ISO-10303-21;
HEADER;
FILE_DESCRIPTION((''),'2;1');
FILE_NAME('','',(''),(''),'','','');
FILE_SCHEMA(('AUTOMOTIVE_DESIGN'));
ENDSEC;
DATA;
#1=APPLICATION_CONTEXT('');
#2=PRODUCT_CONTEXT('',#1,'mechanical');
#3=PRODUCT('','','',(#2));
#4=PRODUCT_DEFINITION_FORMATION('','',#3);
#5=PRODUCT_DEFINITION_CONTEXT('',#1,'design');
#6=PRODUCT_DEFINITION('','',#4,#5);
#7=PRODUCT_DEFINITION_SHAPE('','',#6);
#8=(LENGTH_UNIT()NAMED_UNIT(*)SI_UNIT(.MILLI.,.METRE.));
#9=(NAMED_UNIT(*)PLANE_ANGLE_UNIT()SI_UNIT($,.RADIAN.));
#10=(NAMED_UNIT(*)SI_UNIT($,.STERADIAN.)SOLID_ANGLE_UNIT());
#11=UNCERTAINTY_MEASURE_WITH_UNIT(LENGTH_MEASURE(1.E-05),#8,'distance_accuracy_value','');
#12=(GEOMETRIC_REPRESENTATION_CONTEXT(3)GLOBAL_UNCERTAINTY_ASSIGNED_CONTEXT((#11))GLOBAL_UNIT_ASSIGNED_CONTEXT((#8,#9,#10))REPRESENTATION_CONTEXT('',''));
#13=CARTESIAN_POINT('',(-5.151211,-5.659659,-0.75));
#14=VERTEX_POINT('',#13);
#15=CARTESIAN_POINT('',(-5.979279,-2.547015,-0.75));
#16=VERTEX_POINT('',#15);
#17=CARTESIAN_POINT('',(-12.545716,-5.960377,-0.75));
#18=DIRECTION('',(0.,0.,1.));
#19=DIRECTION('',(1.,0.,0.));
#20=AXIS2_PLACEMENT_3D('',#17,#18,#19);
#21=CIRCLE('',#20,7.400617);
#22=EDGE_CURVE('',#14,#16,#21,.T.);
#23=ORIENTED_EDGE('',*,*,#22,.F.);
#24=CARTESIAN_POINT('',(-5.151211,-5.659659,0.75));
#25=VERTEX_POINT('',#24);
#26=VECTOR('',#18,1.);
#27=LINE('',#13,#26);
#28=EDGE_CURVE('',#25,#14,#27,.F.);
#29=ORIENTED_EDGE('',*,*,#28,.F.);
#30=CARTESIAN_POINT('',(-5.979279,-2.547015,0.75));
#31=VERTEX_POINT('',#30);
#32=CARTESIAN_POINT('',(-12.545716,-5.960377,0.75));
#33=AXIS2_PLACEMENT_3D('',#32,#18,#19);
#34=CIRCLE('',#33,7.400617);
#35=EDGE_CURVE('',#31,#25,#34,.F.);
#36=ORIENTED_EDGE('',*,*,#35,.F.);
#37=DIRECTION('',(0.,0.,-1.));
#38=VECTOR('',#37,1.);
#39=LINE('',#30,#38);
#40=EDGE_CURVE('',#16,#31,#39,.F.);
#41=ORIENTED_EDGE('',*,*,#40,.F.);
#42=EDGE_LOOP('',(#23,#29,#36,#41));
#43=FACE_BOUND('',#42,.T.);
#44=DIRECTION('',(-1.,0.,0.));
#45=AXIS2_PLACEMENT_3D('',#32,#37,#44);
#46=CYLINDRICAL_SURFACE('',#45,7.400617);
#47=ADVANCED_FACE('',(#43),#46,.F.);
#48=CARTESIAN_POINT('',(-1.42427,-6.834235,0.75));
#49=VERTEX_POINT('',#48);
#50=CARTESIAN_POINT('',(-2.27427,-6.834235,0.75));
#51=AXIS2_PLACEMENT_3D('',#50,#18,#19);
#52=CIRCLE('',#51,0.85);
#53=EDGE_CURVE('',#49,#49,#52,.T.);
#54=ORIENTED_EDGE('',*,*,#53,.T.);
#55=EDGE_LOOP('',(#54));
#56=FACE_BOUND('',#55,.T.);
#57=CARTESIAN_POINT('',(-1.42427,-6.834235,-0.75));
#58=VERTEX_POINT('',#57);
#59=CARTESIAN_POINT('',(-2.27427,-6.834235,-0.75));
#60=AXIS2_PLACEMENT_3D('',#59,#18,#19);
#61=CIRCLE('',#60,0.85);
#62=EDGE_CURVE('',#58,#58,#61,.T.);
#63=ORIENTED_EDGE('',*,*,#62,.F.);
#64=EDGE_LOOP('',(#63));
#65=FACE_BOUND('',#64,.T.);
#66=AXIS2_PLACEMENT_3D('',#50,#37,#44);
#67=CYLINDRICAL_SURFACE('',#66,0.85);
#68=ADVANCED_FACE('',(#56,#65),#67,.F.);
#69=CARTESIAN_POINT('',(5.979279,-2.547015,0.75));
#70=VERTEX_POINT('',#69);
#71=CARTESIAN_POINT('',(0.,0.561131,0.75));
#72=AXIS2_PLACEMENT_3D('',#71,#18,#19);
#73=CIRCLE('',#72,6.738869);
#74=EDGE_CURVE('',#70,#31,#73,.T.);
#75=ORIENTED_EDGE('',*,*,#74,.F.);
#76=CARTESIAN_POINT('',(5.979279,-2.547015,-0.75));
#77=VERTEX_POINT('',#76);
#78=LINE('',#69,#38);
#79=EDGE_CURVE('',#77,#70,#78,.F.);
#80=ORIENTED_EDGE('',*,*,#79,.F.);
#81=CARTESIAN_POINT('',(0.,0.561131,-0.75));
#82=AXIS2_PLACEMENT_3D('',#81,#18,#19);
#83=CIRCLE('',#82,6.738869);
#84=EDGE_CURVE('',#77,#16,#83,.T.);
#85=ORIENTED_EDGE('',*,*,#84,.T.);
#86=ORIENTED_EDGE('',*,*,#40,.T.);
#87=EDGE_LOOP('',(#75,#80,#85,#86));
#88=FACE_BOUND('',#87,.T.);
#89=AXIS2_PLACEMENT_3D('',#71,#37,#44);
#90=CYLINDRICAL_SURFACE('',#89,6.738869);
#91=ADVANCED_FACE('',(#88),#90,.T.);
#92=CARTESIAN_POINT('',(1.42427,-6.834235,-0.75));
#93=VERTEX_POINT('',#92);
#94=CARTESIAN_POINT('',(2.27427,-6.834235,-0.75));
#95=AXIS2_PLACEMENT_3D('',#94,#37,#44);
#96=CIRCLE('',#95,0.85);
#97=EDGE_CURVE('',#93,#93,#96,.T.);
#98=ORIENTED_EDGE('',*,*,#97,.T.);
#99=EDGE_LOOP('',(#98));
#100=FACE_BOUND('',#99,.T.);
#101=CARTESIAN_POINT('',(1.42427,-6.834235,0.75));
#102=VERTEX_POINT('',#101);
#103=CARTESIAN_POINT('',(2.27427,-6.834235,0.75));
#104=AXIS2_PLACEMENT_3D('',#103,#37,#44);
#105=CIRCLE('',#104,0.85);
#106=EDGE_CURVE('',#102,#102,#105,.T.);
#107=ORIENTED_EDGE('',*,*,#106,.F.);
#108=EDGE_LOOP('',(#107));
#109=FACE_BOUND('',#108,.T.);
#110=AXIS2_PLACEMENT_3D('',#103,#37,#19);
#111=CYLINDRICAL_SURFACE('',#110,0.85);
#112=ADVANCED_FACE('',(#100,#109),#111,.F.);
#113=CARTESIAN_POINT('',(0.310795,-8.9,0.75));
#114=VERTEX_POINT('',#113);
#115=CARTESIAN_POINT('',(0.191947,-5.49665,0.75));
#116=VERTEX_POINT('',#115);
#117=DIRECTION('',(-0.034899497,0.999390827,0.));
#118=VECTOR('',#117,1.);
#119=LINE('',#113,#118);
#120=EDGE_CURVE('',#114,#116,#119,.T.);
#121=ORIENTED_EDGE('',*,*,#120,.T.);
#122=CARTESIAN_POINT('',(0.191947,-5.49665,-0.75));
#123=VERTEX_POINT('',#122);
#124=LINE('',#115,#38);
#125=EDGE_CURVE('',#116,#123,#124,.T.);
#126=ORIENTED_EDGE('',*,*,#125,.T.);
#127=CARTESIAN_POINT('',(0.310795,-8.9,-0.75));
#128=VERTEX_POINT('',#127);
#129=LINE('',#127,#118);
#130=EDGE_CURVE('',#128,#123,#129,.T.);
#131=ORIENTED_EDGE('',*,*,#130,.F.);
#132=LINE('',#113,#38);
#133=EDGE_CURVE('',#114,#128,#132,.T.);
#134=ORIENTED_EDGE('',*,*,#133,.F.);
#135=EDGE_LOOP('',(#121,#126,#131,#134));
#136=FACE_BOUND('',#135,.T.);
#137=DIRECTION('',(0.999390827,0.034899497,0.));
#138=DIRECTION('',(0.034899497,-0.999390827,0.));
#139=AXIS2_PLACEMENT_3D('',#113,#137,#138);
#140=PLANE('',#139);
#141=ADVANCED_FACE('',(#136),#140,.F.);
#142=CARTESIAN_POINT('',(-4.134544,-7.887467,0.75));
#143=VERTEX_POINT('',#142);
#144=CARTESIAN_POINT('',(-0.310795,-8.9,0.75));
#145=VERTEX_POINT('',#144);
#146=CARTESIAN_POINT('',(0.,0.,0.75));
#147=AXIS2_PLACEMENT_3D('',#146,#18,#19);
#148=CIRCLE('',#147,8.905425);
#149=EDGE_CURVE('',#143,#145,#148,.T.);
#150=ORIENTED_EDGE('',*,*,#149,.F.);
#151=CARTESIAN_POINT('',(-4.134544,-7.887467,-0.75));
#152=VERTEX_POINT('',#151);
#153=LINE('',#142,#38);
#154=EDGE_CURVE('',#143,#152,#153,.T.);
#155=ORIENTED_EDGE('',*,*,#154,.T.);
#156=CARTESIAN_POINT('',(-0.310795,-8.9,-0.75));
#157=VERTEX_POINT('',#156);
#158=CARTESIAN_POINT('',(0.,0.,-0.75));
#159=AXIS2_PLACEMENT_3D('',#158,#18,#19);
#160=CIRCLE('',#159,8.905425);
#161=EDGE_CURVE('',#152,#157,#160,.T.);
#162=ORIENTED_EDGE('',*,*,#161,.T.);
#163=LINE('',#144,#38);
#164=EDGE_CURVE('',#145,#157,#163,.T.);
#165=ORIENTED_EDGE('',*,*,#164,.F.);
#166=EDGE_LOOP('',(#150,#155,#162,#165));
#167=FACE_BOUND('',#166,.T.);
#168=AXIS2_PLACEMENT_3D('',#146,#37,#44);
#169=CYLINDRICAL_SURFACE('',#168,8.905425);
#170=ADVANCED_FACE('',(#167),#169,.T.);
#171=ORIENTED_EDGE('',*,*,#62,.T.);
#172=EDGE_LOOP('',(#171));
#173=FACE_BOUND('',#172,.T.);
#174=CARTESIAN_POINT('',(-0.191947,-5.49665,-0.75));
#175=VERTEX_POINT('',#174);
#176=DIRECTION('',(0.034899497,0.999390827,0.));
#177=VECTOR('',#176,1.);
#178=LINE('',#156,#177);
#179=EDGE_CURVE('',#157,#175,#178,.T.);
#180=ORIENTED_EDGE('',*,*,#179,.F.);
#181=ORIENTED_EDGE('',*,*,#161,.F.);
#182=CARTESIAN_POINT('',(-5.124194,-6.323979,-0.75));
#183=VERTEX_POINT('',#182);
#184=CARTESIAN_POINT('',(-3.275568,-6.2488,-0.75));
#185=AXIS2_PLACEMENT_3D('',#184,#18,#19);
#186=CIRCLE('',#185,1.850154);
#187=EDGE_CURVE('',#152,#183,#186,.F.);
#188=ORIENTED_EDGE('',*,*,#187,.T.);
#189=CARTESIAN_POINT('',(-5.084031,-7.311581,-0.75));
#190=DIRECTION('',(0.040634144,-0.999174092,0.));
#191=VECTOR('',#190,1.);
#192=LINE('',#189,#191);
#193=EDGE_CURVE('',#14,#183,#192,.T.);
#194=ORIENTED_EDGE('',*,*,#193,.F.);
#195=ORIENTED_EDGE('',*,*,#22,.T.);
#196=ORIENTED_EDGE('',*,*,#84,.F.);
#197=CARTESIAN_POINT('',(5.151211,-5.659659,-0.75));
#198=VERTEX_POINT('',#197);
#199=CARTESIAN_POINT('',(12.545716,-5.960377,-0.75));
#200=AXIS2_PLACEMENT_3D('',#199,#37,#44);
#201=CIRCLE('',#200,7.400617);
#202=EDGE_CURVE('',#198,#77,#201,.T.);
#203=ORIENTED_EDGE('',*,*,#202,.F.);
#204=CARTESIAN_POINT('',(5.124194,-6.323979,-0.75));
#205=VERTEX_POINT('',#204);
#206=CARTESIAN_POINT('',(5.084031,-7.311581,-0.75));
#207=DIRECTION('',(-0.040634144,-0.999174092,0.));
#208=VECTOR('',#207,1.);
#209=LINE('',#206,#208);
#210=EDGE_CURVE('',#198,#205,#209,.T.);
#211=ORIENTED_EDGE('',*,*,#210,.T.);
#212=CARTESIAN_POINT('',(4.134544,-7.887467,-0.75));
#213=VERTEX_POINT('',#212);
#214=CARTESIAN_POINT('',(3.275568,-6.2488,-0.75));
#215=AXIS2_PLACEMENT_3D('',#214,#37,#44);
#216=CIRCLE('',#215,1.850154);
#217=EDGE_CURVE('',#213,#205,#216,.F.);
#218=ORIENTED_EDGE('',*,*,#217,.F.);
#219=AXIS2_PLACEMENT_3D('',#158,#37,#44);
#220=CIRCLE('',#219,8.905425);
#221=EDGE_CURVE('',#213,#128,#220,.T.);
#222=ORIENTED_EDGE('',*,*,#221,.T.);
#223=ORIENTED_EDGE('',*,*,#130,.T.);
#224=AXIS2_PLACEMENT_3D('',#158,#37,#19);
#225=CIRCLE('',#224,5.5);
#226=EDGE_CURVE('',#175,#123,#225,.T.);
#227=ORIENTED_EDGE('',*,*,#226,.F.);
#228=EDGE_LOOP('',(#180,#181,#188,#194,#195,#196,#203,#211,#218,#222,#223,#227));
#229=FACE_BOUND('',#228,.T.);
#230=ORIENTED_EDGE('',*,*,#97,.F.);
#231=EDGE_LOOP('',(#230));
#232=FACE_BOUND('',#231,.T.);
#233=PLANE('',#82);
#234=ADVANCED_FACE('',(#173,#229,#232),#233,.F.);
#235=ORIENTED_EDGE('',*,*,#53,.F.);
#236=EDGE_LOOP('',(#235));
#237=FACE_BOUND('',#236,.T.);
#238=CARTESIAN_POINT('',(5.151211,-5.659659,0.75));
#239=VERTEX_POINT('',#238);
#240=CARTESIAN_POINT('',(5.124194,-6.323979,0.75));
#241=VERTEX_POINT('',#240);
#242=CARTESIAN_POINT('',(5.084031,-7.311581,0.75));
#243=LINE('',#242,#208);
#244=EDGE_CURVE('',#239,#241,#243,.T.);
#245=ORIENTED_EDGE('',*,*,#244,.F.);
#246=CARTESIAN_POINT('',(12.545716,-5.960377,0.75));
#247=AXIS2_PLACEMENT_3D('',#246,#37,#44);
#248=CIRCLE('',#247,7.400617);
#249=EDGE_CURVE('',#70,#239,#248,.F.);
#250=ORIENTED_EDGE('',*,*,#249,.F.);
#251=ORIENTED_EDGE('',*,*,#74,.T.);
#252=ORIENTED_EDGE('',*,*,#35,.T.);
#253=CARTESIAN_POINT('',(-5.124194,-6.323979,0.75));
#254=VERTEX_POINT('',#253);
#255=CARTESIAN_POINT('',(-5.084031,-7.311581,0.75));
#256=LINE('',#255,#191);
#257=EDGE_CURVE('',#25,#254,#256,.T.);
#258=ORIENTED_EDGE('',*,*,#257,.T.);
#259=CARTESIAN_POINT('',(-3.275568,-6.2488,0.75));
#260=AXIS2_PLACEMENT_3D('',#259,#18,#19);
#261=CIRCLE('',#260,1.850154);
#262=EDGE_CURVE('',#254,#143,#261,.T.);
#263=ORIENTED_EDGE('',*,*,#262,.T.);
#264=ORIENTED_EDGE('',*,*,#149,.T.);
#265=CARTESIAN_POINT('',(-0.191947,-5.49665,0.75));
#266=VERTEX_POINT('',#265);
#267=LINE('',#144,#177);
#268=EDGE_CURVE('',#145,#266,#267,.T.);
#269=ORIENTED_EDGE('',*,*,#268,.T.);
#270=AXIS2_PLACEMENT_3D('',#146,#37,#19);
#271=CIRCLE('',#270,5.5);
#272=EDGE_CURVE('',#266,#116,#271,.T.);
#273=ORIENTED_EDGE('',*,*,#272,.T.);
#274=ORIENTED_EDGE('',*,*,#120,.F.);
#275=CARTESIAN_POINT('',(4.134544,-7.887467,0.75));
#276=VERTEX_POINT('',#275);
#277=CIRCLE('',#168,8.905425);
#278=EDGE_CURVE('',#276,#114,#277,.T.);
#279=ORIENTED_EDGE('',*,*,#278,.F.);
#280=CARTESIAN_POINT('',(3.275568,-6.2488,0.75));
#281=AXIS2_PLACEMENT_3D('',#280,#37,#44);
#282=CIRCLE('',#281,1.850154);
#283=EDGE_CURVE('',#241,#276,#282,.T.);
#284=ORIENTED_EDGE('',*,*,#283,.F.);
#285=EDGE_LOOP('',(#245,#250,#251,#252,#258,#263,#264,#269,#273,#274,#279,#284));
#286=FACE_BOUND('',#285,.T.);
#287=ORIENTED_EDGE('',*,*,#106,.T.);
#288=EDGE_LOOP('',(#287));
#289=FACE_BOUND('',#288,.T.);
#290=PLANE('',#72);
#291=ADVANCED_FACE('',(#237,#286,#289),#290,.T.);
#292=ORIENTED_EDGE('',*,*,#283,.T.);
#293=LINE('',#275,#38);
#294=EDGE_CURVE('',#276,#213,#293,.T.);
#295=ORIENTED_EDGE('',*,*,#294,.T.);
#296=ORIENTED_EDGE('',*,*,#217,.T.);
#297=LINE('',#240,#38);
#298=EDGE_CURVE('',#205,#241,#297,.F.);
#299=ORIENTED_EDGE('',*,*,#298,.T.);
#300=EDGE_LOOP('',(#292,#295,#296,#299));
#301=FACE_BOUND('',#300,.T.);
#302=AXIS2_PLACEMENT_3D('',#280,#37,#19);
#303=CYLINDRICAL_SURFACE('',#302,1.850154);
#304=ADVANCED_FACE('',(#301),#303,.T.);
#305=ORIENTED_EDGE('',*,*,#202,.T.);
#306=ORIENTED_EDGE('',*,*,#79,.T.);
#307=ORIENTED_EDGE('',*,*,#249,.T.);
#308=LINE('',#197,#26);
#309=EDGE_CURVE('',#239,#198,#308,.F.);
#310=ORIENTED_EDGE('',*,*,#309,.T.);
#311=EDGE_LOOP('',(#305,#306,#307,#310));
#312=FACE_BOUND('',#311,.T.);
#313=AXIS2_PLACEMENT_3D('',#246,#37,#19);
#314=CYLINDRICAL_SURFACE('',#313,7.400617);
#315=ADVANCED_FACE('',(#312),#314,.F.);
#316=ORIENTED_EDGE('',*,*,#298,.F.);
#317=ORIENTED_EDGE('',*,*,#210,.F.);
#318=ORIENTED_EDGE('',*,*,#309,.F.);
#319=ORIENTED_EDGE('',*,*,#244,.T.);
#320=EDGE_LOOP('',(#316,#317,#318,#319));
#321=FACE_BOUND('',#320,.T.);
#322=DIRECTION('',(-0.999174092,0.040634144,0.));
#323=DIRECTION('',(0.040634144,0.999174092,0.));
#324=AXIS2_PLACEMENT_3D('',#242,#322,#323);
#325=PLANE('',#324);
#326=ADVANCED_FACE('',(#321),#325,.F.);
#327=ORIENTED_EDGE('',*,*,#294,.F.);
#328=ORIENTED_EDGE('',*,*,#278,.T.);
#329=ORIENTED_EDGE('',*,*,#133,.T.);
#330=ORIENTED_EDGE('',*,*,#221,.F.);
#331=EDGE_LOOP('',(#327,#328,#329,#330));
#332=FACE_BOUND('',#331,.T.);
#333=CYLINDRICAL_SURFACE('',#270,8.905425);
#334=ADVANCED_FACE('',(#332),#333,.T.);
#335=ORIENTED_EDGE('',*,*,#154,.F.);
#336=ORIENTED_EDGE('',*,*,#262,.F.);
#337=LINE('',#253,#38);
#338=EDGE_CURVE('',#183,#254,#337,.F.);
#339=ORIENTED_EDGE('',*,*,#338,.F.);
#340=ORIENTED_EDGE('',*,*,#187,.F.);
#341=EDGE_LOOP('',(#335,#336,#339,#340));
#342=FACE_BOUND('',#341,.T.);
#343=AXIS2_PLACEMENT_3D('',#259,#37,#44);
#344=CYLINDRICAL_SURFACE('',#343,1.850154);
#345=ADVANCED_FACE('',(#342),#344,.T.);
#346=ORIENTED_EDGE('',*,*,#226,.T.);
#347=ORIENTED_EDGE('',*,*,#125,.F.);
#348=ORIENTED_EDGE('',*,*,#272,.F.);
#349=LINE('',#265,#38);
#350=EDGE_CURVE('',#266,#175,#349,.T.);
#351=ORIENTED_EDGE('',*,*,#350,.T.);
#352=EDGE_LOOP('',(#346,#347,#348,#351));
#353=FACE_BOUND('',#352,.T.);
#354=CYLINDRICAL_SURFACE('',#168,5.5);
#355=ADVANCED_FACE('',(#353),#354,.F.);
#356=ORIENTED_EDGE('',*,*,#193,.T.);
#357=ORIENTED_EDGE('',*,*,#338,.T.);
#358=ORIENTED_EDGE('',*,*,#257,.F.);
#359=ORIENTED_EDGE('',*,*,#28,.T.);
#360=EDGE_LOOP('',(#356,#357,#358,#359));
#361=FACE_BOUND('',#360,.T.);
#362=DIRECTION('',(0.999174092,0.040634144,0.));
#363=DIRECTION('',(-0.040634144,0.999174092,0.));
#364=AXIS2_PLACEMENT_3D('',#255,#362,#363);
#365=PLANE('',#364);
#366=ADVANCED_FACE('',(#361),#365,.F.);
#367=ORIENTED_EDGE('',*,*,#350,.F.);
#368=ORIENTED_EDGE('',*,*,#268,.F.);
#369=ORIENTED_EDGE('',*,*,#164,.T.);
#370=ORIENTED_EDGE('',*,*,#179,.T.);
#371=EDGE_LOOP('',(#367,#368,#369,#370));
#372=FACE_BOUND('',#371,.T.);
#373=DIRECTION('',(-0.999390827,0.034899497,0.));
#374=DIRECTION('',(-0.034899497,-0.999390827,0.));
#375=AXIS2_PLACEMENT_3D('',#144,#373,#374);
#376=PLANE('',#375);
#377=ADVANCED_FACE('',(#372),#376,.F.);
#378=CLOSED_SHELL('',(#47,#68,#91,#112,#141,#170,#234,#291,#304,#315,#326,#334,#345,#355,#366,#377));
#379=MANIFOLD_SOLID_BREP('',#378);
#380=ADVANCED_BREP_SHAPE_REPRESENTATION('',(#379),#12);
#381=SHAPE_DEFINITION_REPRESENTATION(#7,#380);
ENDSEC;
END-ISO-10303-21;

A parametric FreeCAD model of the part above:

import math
import FreeCAD as App
import Part
import Sketcher
from FreeCAD import Vector
Q = App.Units.Quantity


def edges_at(feature, points):
    """Names of the edges that pass closest to the given points."""
    edges = feature.Shape.Edges
    near = lambda p: min(range(len(edges)), key=lambda i: edges[i].distToShape(Part.Vertex(*p))[0])
    return sorted({f"Edge{near(p) + 1}" for p in points})

doc = App.newDocument("Part")
body = doc.addObject("PartDesign::Body", "Body")

# Sketch on XY plane
sketch1 = doc.addObject("Sketcher::SketchObject", "Sketch")
body.addObject(sketch1)
sketch1.AttachmentSupport = (doc.XY_Plane, [""])
sketch1.MapMode = "FlatFace"
sketch1.addGeometry([
    Part.LineSegment(Vector(-5.2, -3.7, 0), Vector(-5.1, -7.3, 0)),  # 0
    Part.ArcOfCircle(Part.Circle(Vector(0, 0, 0), Vector(0, 0, 1), 8.9), math.radians(-125), math.radians(-92)),  # 1
    Part.LineSegment(Vector(-0.3, -8.9, 0), Vector(-0.2, -5.5, 0)),  # 2
    Part.ArcOfCircle(Part.Circle(Vector(0, 0, 0), Vector(0, 0, 1), 5.5), math.radians(90), math.radians(268)),  # 3
    Part.LineSegment(Vector(0, 5.5, 0), Vector(0, 7.3, 0)),  # 4
    Part.ArcOfCircle(Part.Circle(Vector(0, 0.6, 0), Vector(0, 0, 1), 6.7), math.radians(90), math.radians(219)),  # 5
    Part.Circle(Vector(-2.3, -6.8, 0), Vector(0, 0, 1), 0.8),  # 6
], False)
sketch1.addConstraint([
    Sketcher.Constraint("Coincident", 0, 2, 1, 1),
    Sketcher.Constraint("Coincident", 1, 2, 2, 1),
    Sketcher.Constraint("Coincident", 2, 2, 3, 2),
    Sketcher.Constraint("Coincident", 3, 1, 4, 1),
    Sketcher.Constraint("Coincident", 4, 2, 5, 1),
    Sketcher.Constraint("Coincident", 5, 2, 0, 1),
    Sketcher.Constraint("Vertical", 4),
    Sketcher.Constraint("Coincident", 1, 3, -1, 1),
    Sketcher.Constraint("Coincident", 3, 3, -1, 1),
    Sketcher.Constraint("PointOnObject", 5, 3, -2),
    Sketcher.Constraint("PointOnObject", 3, 1, -2),
    Sketcher.Constraint("Diameter", 6, Q("1.7 mm")),
    Sketcher.Constraint("Radius", 3, Q("5.5 mm")),
    Sketcher.Constraint("Angle", 2, Q("88 deg")),
    Sketcher.Constraint("DistanceY", 4, 1, 4, 2, Q("1.8 mm")),
    Sketcher.Constraint("DistanceY", 1, 2, -1, 1, Q("8.9 mm")),
    Sketcher.Constraint("Radius", 5, Q("6.738869 mm")),
    Sketcher.Constraint("Radius", 1, Q("8.905425 mm")),
    Sketcher.Constraint("DistanceX", 5, 2, 2, 2, Q("5.039498 mm")),
    Sketcher.Constraint("DistanceX", 6, 3, -1, 1, Q("2.27427 mm")),
    Sketcher.Constraint("DistanceX", 0, 2, -1, 1, Q("5.084031 mm")),
    Sketcher.Constraint("DistanceY", 6, 3, -1, 1, Q("6.834235 mm")),
])
pad1 = doc.addObject("PartDesign::Pad", "Pad")
body.addObject(pad1)
pad1.Profile = sketch1
pad1.Length = 1.5
pad1.Midplane = True
doc.recompute()

fillet = doc.addObject("PartDesign::Fillet", "Fillet")
body.addObject(fillet)
fillet.Base = (pad1, edges_at(pad1, [(-5.231, -3.687, 0)]))
fillet.Radius = 7.400617
doc.recompute()

fillet2 = doc.addObject("PartDesign::Fillet", "Fillet001")
body.addObject(fillet2)
fillet2.Base = (fillet, edges_at(fillet, [(-5.084, -7.312, 0)]))
fillet2.Radius = 1.850154
body2 = doc.addObject("PartDesign::Body", "Body001")
doc.recompute()

body2.BaseFeature = body
doc.recompute()

mirroring = doc.addObject("Part::Mirroring", "Mirroring")
mirroring.Source = body
mirroring.Base = Vector(0, 7.3, 0.75)
mirroring.Normal = Vector(-1, 0, 0)
body3 = doc.addObject("PartDesign::Body", "Body002")
body3.BaseFeature = mirroring
boolean = doc.addObject("PartDesign::Boolean", "Boolean")
body2.addObject(boolean)
boolean.Type = "Fuse"
boolean.addObjects([body3])
doc.recompute()
mirroring.Visibility = False

doc.recompute()
